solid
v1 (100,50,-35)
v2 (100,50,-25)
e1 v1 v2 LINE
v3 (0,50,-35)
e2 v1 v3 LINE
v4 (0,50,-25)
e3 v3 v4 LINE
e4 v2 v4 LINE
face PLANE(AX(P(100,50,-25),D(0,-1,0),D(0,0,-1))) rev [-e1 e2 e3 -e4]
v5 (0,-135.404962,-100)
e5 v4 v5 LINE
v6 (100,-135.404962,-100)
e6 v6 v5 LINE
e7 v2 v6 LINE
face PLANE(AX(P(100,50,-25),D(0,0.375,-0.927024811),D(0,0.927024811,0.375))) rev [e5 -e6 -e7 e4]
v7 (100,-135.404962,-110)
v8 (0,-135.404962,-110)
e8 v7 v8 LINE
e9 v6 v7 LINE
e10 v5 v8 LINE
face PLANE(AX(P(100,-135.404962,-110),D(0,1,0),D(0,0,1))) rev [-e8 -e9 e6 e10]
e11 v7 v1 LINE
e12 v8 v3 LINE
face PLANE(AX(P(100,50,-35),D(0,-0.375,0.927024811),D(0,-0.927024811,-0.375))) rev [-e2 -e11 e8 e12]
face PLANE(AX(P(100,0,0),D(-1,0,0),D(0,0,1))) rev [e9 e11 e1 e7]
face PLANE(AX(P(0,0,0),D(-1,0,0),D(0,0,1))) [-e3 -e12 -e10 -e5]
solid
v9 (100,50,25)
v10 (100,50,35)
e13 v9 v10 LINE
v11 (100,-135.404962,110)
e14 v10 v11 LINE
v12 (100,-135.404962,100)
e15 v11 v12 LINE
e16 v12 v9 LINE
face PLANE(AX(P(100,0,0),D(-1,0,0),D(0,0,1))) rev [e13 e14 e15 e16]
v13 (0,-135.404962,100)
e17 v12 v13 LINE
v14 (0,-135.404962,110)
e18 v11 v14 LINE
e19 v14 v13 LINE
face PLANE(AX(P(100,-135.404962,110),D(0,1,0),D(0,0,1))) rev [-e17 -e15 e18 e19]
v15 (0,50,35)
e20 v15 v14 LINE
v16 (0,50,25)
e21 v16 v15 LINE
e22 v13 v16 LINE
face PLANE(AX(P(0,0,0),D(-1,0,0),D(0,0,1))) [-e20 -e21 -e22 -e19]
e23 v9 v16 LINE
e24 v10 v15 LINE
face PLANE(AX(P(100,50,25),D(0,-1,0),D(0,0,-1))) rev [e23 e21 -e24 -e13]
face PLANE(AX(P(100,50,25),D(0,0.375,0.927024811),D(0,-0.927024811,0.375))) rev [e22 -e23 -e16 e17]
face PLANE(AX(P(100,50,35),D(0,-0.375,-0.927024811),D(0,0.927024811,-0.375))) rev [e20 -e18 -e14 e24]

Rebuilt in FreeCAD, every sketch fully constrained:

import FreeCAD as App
import Part
import Sketcher

V = App.Vector
Q = App.Units.Quantity

doc = App.newDocument("Part")
body = doc.addObject("PartDesign::Body", "Body")

# Sketch on YZ plane
sketch1 = body.newObject("Sketcher::SketchObject", "Sketch")
sketch1.AttachmentSupport = (doc.getObject("YZ_Plane"), [""])
sketch1.MapMode = "FlatFace"
sketch1.addGeometry(Part.LineSegment(V(-135.404962, 100, 0), V(50, 25, 0)), False)
sketch1.addGeometry(Part.LineSegment(V(50, 25, 0), V(50, 35, 0)), False)
sketch1.addGeometry(Part.LineSegment(V(50, 35, 0), V(-135.404962, 110, 0)), False)
sketch1.addGeometry(Part.LineSegment(V(-135.404962, 110, 0), V(-135.404962, 100, 0)), False)
sketch1.addConstraint(Sketcher.Constraint("Coincident", 0, 2, 1, 1))
sketch1.addConstraint(Sketcher.Constraint("Coincident", 1, 2, 2, 1))
sketch1.addConstraint(Sketcher.Constraint("Coincident", 2, 2, 3, 1))
sketch1.addConstraint(Sketcher.Constraint("Coincident", 3, 2, 0, 1))
sketch1.addConstraint(Sketcher.Constraint("Vertical", 1))
sketch1.addConstraint(Sketcher.Constraint("Vertical", 3))
sketch1.addConstraint(Sketcher.Constraint("Parallel", 0, 2))
sketch1.addConstraint(Sketcher.Constraint("DistanceY", 1, 1, 1, 2, Q("10 mm")))
sketch1.addConstraint(Sketcher.Constraint("Distance", 0, Q("200 mm")))
sketch1.addConstraint(Sketcher.Constraint("DistanceX", -1, 1, 0, 2, Q("50 mm")))
sketch1.addConstraint(Sketcher.Constraint("DistanceY", -1, 1, 0, 2, Q("25 mm")))
sketch1.addConstraint(Sketcher.Constraint("DistanceY", -1, 1, 2, 2, Q("110 mm")))
pad1 = body.newObject("PartDesign::Pad", "Pad")
pad1.Profile = sketch1
pad1.Length = 100
body2 = doc.addObject("PartDesign::Body", "Body001")

# Sketch on YZ plane
sketch2 = body2.newObject("Sketcher::SketchObject", "Sketch001")
sketch2.AttachmentSupport = (doc.getObject("YZ_Plane001"), [""])
sketch2.MapMode = "FlatFace"
sketch2.addGeometry(Part.LineSegment(V(-135.404962, -100, 0), V(-135.404962, -110, 0)), False)
sketch2.addGeometry(Part.LineSegment(V(-135.404962, -110, 0), V(50, -35, 0)), False)
sketch2.addGeometry(Part.LineSegment(V(50, -35, 0), V(50, -25, 0)), False)
sketch2.addGeometry(Part.LineSegment(V(50, -25, 0), V(-135.404962, -100, 0)), False)
sketch2.addConstraint(Sketcher.Constraint("Coincident", 0, 2, 1, 1))
sketch2.addConstraint(Sketcher.Constraint("Coincident", 1, 2, 2, 1))
sketch2.addConstraint(Sketcher.Constraint("Coincident", 2, 2, 3, 1))
sketch2.addConstraint(Sketcher.Constraint("Coincident", 3, 2, 0, 1))
sketch2.addConstraint(Sketcher.Constraint("Vertical", 0))
sketch2.addConstraint(Sketcher.Constraint("Vertical", 2))
sketch2.addConstraint(Sketcher.Constraint("Parallel", 1, 3))
sketch2.addConstraint(Sketcher.Constraint("DistanceY", 0, 2, 0, 1, Q("10 mm")))
sketch2.addConstraint(Sketcher.Constraint("Distance", 1, Q("200 mm")))
sketch2.addConstraint(Sketcher.Constraint("DistanceY", 0, 2, -1, 1, Q("110 mm")))
sketch2.addConstraint(Sketcher.Constraint("DistanceX", -1, 1, 1, 2, Q("50 mm")))
sketch2.addConstraint(Sketcher.Constraint("DistanceY", 1, 2, -1, 1, Q("35 mm")))
pad2 = body2.newObject("PartDesign::Pad", "Pad001")
pad2.Profile = sketch2
pad2.Length = 100

doc.recompute()
